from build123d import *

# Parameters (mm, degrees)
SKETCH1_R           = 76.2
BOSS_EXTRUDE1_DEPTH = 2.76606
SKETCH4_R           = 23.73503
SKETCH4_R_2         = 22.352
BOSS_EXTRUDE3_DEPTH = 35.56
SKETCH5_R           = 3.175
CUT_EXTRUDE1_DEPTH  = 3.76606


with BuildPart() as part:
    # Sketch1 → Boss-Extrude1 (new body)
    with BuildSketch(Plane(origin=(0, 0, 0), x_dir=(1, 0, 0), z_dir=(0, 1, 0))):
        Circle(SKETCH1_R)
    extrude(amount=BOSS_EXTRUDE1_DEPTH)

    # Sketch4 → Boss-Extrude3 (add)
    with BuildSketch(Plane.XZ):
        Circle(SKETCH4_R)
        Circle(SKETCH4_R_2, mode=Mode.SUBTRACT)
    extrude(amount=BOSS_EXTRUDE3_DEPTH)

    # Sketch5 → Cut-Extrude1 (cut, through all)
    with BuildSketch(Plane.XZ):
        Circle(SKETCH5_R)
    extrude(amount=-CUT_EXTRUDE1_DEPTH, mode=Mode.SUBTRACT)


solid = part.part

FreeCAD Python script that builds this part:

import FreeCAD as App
import Part
import Sketcher
from FreeCAD import Vector
Q = App.Units.Quantity

doc = App.newDocument("Part")
params = doc.addObject("Spreadsheet::Sheet", "Params")
for row, (alias, value) in enumerate([
    ("sketch1_diameter", "6 in"),
    ("pad1_length", "0.1089 in"),
    ("sketch2_diameter", "1.76 in"),
    ("pad2_length", "1.4 in"),
    ("sketch3_diameter", "0.25 in"),
], start=1):
    params.set(f"A{row}", alias)
    params.set(f"B{row}", "=" + value)
    params.setAlias(f"B{row}", alias)

body = doc.addObject("PartDesign::Body", "Body")

sketch1 = body.newObject("Sketcher::SketchObject", "Sketch")
sketch1.AttachmentSupport = (doc.getObject("XZ_Plane"), [""])
sketch1.MapMode = "FlatFace"
sketch1.addGeometry(Part.Circle(Vector(0, 0, 0), Vector(0, 0, 1), 76.2), False)
sketch1.addConstraint([
    Sketcher.Constraint("Coincident", 0, 3, -1, 1),
    Sketcher.Constraint("Diameter", 0, Q("6 in")),
])
sketch1.setExpression("Constraints[1]", "Params.sketch1_diameter")
pad1 = body.newObject("PartDesign::Pad", "Pad")
pad1.Profile = sketch1
pad1.setExpression("Length", "Params.pad1_length")
pad1.Reversed = True

sketch2 = body.newObject("Sketcher::SketchObject", "Sketch001")
sketch2.AttachmentSupport = (doc.getObject("XZ_Plane"), [""])
sketch2.MapMode = "FlatFace"
sketch2.addGeometry([
    Part.Circle(Vector(0, 0, 0), Vector(0, 0, 1), 23.73503),
    Part.Circle(Vector(0, 0, 0), Vector(0, 0, 1), 22.352),
], False)
sketch2.addConstraint([
    Sketcher.Constraint("Coincident", 0, 3, -1, 1),
    Sketcher.Constraint("Coincident", 1, 3, -1, 1),
    Sketcher.Constraint("Diameter", 1, Q("1.76 in")),
    Sketcher.Constraint("Diameter", 0, Q("1.8689 in")),
])
sketch2.setExpression("Constraints[2]", "Params.sketch2_diameter")
pad2 = body.newObject("PartDesign::Pad", "Pad001")
pad2.Profile = sketch2
pad2.setExpression("Length", "Params.pad2_length")

sketch3 = body.newObject("Sketcher::SketchObject", "Sketch002")
sketch3.AttachmentSupport = (doc.getObject("XZ_Plane"), [""])
sketch3.MapMode = "FlatFace"
sketch3.addGeometry(Part.Circle(Vector(0, 0, 0), Vector(0, 0, 1), 3.175), False)
sketch3.addConstraint([
    Sketcher.Constraint("Coincident", 0, 3, -1, 1),
    Sketcher.Constraint("Diameter", 0, Q("0.25 in")),
])
sketch3.setExpression("Constraints[1]", "Params.sketch3_diameter")
pocket1 = body.newObject("PartDesign::Pocket", "Pocket")
pocket1.Profile = sketch3
pocket1.Type = "ThroughAll"

doc.recompute()
